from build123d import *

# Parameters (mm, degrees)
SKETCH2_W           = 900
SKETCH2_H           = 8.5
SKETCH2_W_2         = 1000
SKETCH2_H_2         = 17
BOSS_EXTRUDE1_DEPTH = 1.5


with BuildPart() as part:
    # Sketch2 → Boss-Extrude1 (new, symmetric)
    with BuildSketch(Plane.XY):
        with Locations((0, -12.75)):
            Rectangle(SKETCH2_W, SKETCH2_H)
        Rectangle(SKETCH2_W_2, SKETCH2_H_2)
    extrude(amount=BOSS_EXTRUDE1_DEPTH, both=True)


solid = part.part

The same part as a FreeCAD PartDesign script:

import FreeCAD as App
import Part
import Sketcher
Q = App.Units.Quantity


def add_polygon(sketch, points):
    """Adds a closed chain of lines whose ends are joined by coincident constraints."""
    first, n = sketch.GeometryCount, len(points)
    for a, b in zip(points, points[1:] + points[:1]):
        sketch.addGeometry(Part.LineSegment(App.Vector(*a, 0), App.Vector(*b, 0)), False)
    for i in range(n):
        sketch.addConstraint(Sketcher.Constraint("Coincident", first + i, 2, first + (i + 1) % n, 1))

doc = App.newDocument("Part")
params = doc.addObject("Spreadsheet::Sheet", "Params")
for row, (alias, value) in enumerate([
    ("sketch1_width", "900 mm"),
    ("sketch1_width2", "50 mm"),
    ("sketch1_height", "17 mm"),
    ("sketch1_height2", "8.5 mm"),
    ("pad1_length", "3 mm"),
], start=1):
    params.set(f"A{row}", alias)
    params.set(f"B{row}", "=" + value)
    params.setAlias(f"B{row}", alias)

body = doc.addObject("PartDesign::Body", "Body")

# Sketch on XY plane
sketch1 = doc.addObject("Sketcher::SketchObject", "Sketch")
body.addObject(sketch1)
sketch1.AttachmentSupport = (doc.XY_Plane, [""])
sketch1.MapMode = "FlatFace"
add_polygon(sketch1, [(-450, -8), (-450, -17), (450, -17), (450, -8), (500, -8), (500, 8), (-500, 8), (-500, -8)])  # lines 0-7
sketch1.addConstraint([
    Sketcher.Constraint("Vertical", 0),
    Sketcher.Constraint("Horizontal", 1),
    Sketcher.Constraint("Vertical", 2),
    Sketcher.Constraint("Horizontal", 3),
    Sketcher.Constraint("Vertical", 4),
    Sketcher.Constraint("Horizontal", 5),
    Sketcher.Constraint("Vertical", 6),
    Sketcher.Constraint("Horizontal", 7),
    Sketcher.Constraint("Symmetric", 3, 2, 5, 2, -1, 1),
    Sketcher.Constraint("Symmetric", 2, 2, 7, 2, -2),
    Sketcher.Constraint("DistanceX", 1, 1, 1, 2, Q("900 mm")),
    Sketcher.Constraint("DistanceX", 3, 1, 3, 2, Q("50 mm")),
    Sketcher.Constraint("DistanceY", 4, 1, 4, 2, Q("17 mm")),
    Sketcher.Constraint("DistanceY", 0, 2, 0, 1, Q("8.5 mm")),
])
sketch1.setExpression("Constraints[18]", "Params.sketch1_width")
sketch1.setExpression("Constraints[19]", "Params.sketch1_width2")
sketch1.setExpression("Constraints[20]", "Params.sketch1_height")
sketch1.setExpression("Constraints[21]", "Params.sketch1_height2")
pad1 = doc.addObject("PartDesign::Pad", "Pad")
body.addObject(pad1)
pad1.Profile = sketch1
pad1.setExpression("Length", "Params.pad1_length")
pad1.Midplane = True

doc.recompute()
